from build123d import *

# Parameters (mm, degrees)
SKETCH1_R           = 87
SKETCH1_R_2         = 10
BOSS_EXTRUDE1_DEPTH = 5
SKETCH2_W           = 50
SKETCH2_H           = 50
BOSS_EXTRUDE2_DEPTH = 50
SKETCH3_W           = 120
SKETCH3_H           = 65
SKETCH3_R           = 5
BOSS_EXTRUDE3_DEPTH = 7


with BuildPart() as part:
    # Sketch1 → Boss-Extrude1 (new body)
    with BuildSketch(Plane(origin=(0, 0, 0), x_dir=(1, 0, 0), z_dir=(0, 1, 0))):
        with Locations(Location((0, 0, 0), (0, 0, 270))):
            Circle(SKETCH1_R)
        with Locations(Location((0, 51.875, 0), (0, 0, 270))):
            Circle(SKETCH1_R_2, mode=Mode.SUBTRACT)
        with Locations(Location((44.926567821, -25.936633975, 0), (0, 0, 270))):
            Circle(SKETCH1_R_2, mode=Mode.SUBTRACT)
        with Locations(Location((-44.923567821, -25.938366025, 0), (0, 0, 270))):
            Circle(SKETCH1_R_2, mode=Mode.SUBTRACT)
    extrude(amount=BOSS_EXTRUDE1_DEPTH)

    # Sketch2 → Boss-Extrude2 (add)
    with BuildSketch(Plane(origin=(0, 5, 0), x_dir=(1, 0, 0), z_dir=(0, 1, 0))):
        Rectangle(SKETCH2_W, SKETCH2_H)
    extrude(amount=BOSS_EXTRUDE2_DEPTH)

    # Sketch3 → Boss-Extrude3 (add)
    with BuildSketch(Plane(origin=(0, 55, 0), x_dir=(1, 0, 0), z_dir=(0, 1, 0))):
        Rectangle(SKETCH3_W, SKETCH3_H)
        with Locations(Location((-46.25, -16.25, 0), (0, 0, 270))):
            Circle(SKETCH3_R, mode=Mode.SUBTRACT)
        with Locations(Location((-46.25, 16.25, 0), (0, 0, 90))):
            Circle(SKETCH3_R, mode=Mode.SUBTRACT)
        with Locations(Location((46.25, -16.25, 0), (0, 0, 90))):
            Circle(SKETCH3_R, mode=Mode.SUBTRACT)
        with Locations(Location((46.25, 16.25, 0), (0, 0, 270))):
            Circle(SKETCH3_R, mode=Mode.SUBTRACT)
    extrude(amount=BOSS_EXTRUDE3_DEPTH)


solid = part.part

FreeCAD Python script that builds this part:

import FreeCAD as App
import Part
import Sketcher

doc = App.newDocument("Part")
body = doc.addObject("PartDesign::Body", "Body")

sketch1 = body.newObject("Sketcher::SketchObject", "Sketch")
sketch1.AttachmentSupport = (doc.getObject("XZ_Plane"), [""])
sketch1.MapMode = "FlatFace"
sketch1.addGeometry(Part.Circle(App.Vector(0, 0, 0), App.Vector(0, 0, 1), 87), False)
sketch1.addGeometry(Part.Circle(App.Vector(0, -52, 0), App.Vector(0, 0, 1), 10), False)
sketch1.addGeometry(Part.Circle(App.Vector(-45, 26, 0), App.Vector(0, 0, 1), 10), False)
sketch1.addGeometry(Part.Circle(App.Vector(45, 26, 0), App.Vector(0, 0, 1), 10), False)
sketch1.addConstraint(Sketcher.Constraint("Coincident", 0, 3, -1, 1))
sketch1.addConstraint(Sketcher.Constraint("Equal", 1, 2))
sketch1.addConstraint(Sketcher.Constraint("Equal", 2, 3))
sketch1.addConstraint(Sketcher.Constraint("PointOnObject", 1, 3, -2))
sketch1.addConstraint(Sketcher.Constraint("Diameter", 0, 174.0))
sketch1.addConstraint(Sketcher.Constraint("Diameter", 1, 20.0))
sketch1.addConstraint(Sketcher.Constraint("DistanceY", 1, 3, -1, 1, 51.875))
sketch1.addConstraint(Sketcher.Constraint("DistanceX", 2, 3, -1, 1, 44.923568))
sketch1.addConstraint(Sketcher.Constraint("DistanceY", -1, 1, 2, 3, 25.938366))
sketch1.addConstraint(Sketcher.Constraint("DistanceX", -1, 1, 3, 3, 44.926568))
sketch1.addConstraint(Sketcher.Constraint("DistanceY", -1, 1, 3, 3, 25.936634))
pad1 = body.newObject("PartDesign::Pad", "Pad")
pad1.Profile = sketch1
pad1.Length = 5
pad1.Reversed = True

sketch2 = body.newObject("Sketcher::SketchObject", "Sketch001")
sketch2.AttachmentSupport = (doc.getObject("XZ_Plane"), [""])
sketch2.MapMode = "FlatFace"
sketch2.AttachmentOffset = App.Placement(App.Vector(0, 0, -5), App.Rotation())
sketch2.addGeometry(Part.LineSegment(App.Vector(-25, -25, 0), App.Vector(-25, 25, 0)), False)
sketch2.addGeometry(Part.LineSegment(App.Vector(-25, 25, 0), App.Vector(25, 25, 0)), False)
sketch2.addGeometry(Part.LineSegment(App.Vector(25, 25, 0), App.Vector(25, -25, 0)), False)
sketch2.addGeometry(Part.LineSegment(App.Vector(25, -25, 0), App.Vector(-25, -25, 0)), False)
sketch2.addConstraint(Sketcher.Constraint("Coincident", 0, 2, 1, 1))
sketch2.addConstraint(Sketcher.Constraint("Coincident", 1, 2, 2, 1))
sketch2.addConstraint(Sketcher.Constraint("Coincident", 2, 2, 3, 1))
sketch2.addConstraint(Sketcher.Constraint("Coincident", 3, 2, 0, 1))
sketch2.addConstraint(Sketcher.Constraint("Vertical", 0))
sketch2.addConstraint(Sketcher.Constraint("Horizontal", 1))
sketch2.addConstraint(Sketcher.Constraint("Vertical", 2))
sketch2.addConstraint(Sketcher.Constraint("Horizontal", 3))
sketch2.addConstraint(Sketcher.Constraint("Symmetric", 0, 2, 2, 2, -1, 1))
sketch2.addConstraint(Sketcher.Constraint("Equal", 3, 0))
sketch2.addConstraint(Sketcher.Constraint("DistanceX", 1, 1, 1, 2, 50.0))
pad2 = body.newObject("PartDesign::Pad", "Pad001")
pad2.Profile = sketch2
pad2.Length = 50
pad2.Reversed = True

sketch3 = body.newObject("Sketcher::SketchObject", "Sketch002")
sketch3.AttachmentSupport = (doc.getObject("XZ_Plane"), [""])
sketch3.MapMode = "FlatFace"
sketch3.AttachmentOffset = App.Placement(App.Vector(0, 0, -55), App.Rotation())
sketch3.addGeometry(Part.LineSegment(App.Vector(-60, -32, 0), App.Vector(-60, 32, 0)), False)
sketch3.addGeometry(Part.LineSegment(App.Vector(-60, 32, 0), App.Vector(60, 32, 0)), False)
sketch3.addGeometry(Part.LineSegment(App.Vector(60, 32, 0), App.Vector(60, -32, 0)), False)
sketch3.addGeometry(Part.LineSegment(App.Vector(60, -32, 0), App.Vector(-60, -32, 0)), False)
sketch3.addGeometry(Part.Circle(App.Vector(-46, 16, 0), App.Vector(0, 0, 1), 5), False)
sketch3.addGeometry(Part.Circle(App.Vector(46, 16, 0), App.Vector(0, 0, 1), 5), False)
sketch3.addGeometry(Part.Circle(App.Vector(-46, -16, 0), App.Vector(0, 0, 1), 5), False)
sketch3.addGeometry(Part.Circle(App.Vector(46, -16, 0), App.Vector(0, 0, 1), 5), False)
sketch3.addConstraint(Sketcher.Constraint("Coincident", 0, 2, 1, 1))
sketch3.addConstraint(Sketcher.Constraint("Coincident", 1, 2, 2, 1))
sketch3.addConstraint(Sketcher.Constraint("Coincident", 2, 2, 3, 1))
sketch3.addConstraint(Sketcher.Constraint("Coincident", 3, 2, 0, 1))
sketch3.addConstraint(Sketcher.Constraint("Vertical", 0))
sketch3.addConstraint(Sketcher.Constraint("Horizontal", 1))
sketch3.addConstraint(Sketcher.Constraint("Vertical", 2))
sketch3.addConstraint(Sketcher.Constraint("Horizontal", 3))
sketch3.addConstraint(Sketcher.Constraint("Equal", 4, 5))
sketch3.addConstraint(Sketcher.Constraint("Equal", 5, 6))
sketch3.addConstraint(Sketcher.Constraint("Equal", 6, 7))
sketch3.addConstraint(Sketcher.Constraint("Symmetric", 5, 3, 6, 3, -1, 1))
sketch3.addConstraint(Sketcher.Constraint("Symmetric", 4, 3, 7, 3, -1, 1))
sketch3.addConstraint(Sketcher.Constraint("Symmetric", 0, 2, 2, 2, -1, 1))
sketch3.addConstraint(Sketcher.Constraint("Symmetric", 4, 3, 5, 3, -2))
sketch3.addConstraint(Sketcher.Constraint("Diameter", 4, 10.0))
sketch3.addConstraint(Sketcher.Constraint("DistanceX", 1, 1, 1, 2, 120.0))
sketch3.addConstraint(Sketcher.Constraint("DistanceY", 0, 1, 0, 2, 65.0))
sketch3.addConstraint(Sketcher.Constraint("DistanceX", 4, 3, 5, 3, 92.5))
sketch3.addConstraint(Sketcher.Constraint("DistanceY", 6, 3, 4, 3, 32.5))
pad3 = body.newObject("PartDesign::Pad", "Pad002")
pad3.Profile = sketch3
pad3.Length = 7
pad3.Reversed = True

doc.recompute()
